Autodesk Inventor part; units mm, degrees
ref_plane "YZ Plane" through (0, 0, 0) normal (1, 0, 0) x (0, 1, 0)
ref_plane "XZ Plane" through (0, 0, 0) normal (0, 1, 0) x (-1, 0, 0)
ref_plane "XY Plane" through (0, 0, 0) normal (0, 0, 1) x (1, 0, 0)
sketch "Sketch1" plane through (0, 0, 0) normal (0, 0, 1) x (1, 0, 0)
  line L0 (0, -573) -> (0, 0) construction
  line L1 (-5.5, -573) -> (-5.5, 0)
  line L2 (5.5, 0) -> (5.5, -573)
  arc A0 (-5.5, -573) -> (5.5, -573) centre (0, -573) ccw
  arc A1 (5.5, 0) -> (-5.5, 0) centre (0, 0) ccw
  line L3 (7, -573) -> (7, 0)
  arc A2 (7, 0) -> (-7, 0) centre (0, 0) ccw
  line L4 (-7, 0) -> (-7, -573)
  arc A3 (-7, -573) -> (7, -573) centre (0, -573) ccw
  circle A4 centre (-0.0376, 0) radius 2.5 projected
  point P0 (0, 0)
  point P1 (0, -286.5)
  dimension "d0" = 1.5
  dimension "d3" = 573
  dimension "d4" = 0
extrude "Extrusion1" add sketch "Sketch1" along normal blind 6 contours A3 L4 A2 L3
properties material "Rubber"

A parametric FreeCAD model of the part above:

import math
import FreeCAD as App
import Part
import Sketcher
Q = App.Units.Quantity

doc = App.newDocument("Part")
body = doc.addObject("PartDesign::Body", "Body")

sketch1 = doc.addObject("Sketcher::SketchObject", "Sketch")
body.addObject(sketch1)
sketch1.AttachmentSupport = (doc.XY_Plane, [""])
sketch1.MapMode = "FlatFace"
sketch1.addGeometry([
    Part.ArcOfCircle(Part.Circle(App.Vector(0, -573, 0), App.Vector(0, 0, 1), 7), math.radians(180), math.radians(360)),
    Part.LineSegment(App.Vector(7, -573, 0), App.Vector(7, 0, 0)),
    Part.ArcOfCircle(Part.Circle(App.Vector(0, 0, 0), App.Vector(0, 0, 1), 7), math.radians(0), math.radians(180)),
    Part.LineSegment(App.Vector(-7, 0, 0), App.Vector(-7, -573, 0)),
    Part.ArcOfCircle(Part.Circle(App.Vector(0, -573, 0), App.Vector(0, 0, 1), 5.5), math.radians(180), math.radians(360)),
    Part.LineSegment(App.Vector(-5.5, -573, 0), App.Vector(-5.5, 0, 0)),
    Part.ArcOfCircle(Part.Circle(App.Vector(0, 0, 0), App.Vector(0, 0, 1), 5.5), math.radians(0), math.radians(180)),
    Part.LineSegment(App.Vector(5.5, 0, 0), App.Vector(5.5, -573, 0)),
], False)
sketch1.addConstraint([
    Sketcher.Constraint("Tangent", 0, 2, 1, 1),
    Sketcher.Constraint("Tangent", 1, 2, 2, 1),
    Sketcher.Constraint("Tangent", 2, 2, 3, 1),
    Sketcher.Constraint("Tangent", 3, 2, 0, 1),
    Sketcher.Constraint("Tangent", 4, 1, 5, 1),
    Sketcher.Constraint("Tangent", 5, 2, 6, 2),
    Sketcher.Constraint("Tangent", 6, 1, 7, 1),
    Sketcher.Constraint("Tangent", 7, 2, 4, 2),
    Sketcher.Constraint("Vertical", 1),
    Sketcher.Constraint("Vertical", 3),
    Sketcher.Constraint("Vertical", 5),
    Sketcher.Constraint("Vertical", 7),
    Sketcher.Constraint("Coincident", 2, 3, -1, 1),
    Sketcher.Constraint("Coincident", 6, 3, -1, 1),
    Sketcher.Constraint("Horizontal", 4, 3, 0, 2),
    Sketcher.Constraint("DistanceY", 1, 1, 1, 2, Q("573 mm")),
    Sketcher.Constraint("Radius", 0, Q("7 mm")),
    Sketcher.Constraint("Radius", 4, Q("5.5 mm")),
])
pad1 = doc.addObject("PartDesign::Pad", "Pad")
body.addObject(pad1)
pad1.Profile = sketch1
pad1.Length = 6

doc.recompute()
